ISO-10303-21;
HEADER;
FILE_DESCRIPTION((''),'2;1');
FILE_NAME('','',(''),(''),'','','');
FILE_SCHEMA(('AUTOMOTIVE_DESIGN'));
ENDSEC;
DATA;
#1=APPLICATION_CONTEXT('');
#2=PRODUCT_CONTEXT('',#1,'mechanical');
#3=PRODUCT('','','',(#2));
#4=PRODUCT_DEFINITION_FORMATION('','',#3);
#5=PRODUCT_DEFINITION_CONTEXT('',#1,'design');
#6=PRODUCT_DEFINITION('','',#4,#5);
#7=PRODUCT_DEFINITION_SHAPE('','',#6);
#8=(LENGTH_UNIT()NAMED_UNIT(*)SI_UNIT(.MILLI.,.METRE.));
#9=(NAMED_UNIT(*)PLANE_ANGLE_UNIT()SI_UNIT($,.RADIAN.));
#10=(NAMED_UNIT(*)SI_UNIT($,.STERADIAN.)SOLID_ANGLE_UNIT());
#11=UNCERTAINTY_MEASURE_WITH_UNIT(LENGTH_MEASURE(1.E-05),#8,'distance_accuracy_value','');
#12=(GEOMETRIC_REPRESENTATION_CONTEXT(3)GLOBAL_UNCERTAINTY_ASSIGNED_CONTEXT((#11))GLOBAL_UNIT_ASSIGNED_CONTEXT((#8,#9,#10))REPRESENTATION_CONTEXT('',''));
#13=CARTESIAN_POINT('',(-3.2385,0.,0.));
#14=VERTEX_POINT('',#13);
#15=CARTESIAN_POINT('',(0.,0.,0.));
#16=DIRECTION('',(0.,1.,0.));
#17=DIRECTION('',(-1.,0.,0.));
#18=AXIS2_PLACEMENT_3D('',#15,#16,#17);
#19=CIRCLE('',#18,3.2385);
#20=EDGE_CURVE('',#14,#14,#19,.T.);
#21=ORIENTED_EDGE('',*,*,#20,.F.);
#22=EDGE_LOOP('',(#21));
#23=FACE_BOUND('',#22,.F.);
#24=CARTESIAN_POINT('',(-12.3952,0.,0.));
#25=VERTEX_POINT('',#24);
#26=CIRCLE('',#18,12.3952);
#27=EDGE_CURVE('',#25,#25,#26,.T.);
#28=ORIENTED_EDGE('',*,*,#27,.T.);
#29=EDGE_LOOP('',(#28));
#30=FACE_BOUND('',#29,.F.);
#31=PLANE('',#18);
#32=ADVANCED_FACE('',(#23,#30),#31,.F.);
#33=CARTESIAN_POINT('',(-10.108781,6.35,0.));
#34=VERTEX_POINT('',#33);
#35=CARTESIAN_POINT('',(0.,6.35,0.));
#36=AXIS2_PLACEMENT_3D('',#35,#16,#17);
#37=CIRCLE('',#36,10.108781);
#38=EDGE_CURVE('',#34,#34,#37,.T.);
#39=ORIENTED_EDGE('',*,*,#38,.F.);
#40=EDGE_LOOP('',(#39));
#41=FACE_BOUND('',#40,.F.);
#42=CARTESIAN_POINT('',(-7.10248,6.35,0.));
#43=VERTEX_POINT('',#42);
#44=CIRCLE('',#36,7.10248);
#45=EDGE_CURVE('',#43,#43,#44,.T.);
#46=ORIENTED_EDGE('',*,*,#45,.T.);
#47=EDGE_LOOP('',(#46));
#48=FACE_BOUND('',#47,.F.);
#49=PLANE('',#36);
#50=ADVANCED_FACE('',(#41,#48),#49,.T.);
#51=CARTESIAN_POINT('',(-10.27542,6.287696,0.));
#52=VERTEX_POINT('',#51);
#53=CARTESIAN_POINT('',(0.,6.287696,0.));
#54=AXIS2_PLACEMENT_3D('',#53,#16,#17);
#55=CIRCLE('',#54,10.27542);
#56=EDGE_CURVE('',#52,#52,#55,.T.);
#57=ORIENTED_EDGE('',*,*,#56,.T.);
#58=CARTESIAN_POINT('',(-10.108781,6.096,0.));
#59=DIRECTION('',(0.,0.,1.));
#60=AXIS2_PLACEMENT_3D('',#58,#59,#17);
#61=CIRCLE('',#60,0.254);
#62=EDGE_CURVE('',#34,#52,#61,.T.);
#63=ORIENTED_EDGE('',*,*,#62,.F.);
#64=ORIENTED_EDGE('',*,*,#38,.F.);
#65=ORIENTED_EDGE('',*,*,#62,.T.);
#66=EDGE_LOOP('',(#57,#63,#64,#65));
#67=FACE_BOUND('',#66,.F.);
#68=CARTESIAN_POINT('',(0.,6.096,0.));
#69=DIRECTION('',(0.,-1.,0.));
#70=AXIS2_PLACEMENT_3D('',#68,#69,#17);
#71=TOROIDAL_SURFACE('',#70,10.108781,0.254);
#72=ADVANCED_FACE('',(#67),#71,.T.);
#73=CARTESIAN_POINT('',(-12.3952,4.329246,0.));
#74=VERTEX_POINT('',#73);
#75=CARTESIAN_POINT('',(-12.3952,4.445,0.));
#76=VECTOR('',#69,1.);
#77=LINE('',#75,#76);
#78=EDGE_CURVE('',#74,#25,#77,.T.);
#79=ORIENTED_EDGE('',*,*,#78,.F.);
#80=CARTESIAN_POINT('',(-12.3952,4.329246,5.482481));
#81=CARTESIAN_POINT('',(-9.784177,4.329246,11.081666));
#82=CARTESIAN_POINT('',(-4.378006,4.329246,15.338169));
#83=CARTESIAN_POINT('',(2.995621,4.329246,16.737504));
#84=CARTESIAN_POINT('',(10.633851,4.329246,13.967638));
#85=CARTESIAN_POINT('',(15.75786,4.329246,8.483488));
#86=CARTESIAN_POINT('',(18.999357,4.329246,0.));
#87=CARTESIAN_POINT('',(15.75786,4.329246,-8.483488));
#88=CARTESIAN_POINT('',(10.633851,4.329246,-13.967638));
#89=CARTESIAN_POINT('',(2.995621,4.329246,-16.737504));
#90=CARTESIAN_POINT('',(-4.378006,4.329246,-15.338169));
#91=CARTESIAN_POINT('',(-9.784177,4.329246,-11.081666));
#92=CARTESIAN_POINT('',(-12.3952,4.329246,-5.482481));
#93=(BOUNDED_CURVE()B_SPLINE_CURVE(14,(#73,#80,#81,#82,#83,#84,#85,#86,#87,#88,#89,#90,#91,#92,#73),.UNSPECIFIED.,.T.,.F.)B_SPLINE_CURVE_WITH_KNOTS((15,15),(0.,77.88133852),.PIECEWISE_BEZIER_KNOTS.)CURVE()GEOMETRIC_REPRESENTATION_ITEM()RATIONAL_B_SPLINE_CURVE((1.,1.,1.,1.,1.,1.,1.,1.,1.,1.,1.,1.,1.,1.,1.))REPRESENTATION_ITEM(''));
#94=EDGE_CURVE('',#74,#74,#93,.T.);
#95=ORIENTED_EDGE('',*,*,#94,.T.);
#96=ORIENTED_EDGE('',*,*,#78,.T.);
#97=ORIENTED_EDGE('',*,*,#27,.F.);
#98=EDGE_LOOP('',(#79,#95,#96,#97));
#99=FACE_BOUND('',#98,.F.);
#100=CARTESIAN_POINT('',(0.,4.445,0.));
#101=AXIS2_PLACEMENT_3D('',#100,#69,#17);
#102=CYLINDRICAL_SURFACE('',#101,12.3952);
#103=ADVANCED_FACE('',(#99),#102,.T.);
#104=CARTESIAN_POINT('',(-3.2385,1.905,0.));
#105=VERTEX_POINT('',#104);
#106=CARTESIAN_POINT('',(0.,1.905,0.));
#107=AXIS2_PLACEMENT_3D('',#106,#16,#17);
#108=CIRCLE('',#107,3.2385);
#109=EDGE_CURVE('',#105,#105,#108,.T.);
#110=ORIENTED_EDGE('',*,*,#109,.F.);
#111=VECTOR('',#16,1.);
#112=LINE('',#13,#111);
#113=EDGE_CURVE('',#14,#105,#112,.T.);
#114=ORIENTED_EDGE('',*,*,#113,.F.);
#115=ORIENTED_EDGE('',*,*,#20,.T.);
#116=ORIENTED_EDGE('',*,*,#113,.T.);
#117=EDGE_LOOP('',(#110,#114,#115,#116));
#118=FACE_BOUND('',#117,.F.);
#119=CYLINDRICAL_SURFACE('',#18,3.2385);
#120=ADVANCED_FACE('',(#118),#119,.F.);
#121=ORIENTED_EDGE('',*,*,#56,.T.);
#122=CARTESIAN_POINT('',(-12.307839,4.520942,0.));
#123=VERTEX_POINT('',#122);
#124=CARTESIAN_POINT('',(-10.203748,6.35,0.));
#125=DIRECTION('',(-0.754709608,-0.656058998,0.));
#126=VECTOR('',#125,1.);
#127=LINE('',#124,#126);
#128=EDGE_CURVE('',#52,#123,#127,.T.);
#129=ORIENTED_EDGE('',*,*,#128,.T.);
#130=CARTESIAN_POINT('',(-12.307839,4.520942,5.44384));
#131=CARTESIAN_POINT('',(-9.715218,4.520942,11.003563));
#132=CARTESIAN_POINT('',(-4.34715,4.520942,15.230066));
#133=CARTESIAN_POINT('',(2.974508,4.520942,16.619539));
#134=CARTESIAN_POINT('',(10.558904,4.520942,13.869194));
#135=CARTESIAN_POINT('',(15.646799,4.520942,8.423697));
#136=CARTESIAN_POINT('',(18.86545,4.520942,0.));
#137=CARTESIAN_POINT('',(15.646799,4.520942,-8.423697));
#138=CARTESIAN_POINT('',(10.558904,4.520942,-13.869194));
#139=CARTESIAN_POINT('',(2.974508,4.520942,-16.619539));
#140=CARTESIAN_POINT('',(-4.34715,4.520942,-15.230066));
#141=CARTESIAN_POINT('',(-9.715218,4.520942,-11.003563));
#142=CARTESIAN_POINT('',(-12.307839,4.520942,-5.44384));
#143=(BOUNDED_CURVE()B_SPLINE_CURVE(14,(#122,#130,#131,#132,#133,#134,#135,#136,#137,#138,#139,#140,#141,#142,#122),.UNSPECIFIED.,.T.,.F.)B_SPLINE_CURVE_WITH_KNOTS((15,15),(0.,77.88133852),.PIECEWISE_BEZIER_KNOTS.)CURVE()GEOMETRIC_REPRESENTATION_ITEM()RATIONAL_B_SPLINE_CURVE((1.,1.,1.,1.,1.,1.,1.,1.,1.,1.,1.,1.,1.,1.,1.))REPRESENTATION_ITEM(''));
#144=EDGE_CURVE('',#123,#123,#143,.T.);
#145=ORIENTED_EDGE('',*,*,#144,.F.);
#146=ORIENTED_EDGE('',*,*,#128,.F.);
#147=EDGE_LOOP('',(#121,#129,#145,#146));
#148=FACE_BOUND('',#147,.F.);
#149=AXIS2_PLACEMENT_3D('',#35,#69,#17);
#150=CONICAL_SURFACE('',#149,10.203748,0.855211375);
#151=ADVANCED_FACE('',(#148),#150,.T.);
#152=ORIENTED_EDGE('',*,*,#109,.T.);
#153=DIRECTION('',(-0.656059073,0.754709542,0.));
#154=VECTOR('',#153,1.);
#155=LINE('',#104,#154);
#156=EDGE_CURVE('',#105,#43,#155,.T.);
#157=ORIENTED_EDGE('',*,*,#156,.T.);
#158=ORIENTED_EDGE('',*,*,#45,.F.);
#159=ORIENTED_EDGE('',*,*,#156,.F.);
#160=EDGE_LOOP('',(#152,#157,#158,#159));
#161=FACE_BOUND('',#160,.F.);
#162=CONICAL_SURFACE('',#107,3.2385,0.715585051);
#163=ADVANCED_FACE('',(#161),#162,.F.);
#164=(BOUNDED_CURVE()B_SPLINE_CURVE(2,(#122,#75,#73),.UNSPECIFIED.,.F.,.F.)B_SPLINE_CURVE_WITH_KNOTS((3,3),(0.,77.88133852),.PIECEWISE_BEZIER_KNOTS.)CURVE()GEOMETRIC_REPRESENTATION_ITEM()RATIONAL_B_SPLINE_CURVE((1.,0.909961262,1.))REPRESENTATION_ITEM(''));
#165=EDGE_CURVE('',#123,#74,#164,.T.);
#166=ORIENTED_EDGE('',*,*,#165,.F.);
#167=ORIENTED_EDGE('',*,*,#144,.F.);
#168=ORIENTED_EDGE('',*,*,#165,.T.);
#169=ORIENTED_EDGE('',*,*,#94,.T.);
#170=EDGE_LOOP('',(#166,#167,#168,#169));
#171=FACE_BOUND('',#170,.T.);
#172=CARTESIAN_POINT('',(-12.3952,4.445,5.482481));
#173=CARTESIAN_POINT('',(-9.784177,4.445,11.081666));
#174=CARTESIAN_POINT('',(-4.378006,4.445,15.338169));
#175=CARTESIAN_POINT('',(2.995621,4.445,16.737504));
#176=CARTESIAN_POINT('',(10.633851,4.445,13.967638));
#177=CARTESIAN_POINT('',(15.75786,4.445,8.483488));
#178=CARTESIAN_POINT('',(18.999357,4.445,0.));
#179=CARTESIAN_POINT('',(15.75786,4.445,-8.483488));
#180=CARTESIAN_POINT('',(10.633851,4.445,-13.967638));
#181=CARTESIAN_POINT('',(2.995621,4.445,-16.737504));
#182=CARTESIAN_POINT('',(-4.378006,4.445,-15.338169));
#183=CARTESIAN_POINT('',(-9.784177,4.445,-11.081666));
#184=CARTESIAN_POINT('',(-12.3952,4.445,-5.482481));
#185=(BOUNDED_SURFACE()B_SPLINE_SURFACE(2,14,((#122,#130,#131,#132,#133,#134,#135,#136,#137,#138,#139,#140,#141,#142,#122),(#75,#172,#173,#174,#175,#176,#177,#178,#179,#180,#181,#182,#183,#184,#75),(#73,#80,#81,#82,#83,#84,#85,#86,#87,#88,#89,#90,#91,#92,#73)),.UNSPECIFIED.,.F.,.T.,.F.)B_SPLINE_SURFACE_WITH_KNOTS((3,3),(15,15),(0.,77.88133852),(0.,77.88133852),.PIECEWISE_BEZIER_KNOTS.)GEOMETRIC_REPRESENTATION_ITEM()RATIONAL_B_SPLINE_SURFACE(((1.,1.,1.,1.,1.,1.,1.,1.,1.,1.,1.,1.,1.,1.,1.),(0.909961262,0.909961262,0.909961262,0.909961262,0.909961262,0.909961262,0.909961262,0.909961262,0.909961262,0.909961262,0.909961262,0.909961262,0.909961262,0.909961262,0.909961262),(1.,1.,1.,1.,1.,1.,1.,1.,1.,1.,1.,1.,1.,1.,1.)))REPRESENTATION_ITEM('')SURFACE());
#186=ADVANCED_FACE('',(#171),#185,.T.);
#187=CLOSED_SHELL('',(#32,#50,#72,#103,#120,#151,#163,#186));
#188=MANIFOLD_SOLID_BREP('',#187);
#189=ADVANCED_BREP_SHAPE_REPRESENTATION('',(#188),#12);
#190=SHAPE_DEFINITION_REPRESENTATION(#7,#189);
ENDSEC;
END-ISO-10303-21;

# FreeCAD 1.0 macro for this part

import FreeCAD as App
import Part
import Sketcher
Q = App.Units.Quantity


def edges_at(feature, points):
    """Names of the edges that pass closest to the given points."""
    edges = feature.Shape.Edges
    near = lambda p: min(range(len(edges)), key=lambda i: edges[i].distToShape(Part.Vertex(*p))[0])
    return sorted({f"Edge{near(p) + 1}" for p in points})


def add_polygon(sketch, points):
    """Adds a closed chain of lines whose ends are joined by coincident constraints."""
    first, n = sketch.GeometryCount, len(points)
    for a, b in zip(points, points[1:] + points[:1]):
        sketch.addGeometry(Part.LineSegment(App.Vector(*a, 0), App.Vector(*b, 0)), False)
    for i in range(n):
        sketch.addConstraint(Sketcher.Constraint("Coincident", first + i, 2, first + (i + 1) % n, 1))

doc = App.newDocument("Part")
body = doc.addObject("PartDesign::Body", "Body")

# Sketch on XY plane
sketch1 = body.newObject("Sketcher::SketchObject", "Sketch")
sketch1.AttachmentSupport = (doc.getObject("XY_Plane"), [""])
sketch1.MapMode = "FlatFace"
add_polygon(sketch1, [(-12.4, 0), (-3.2, 0), (-3.2, 1.9), (-7.1, 6.3), (-10.2, 6.3), (-12.4, 4.4)])  # lines 0-5
sketch1.addConstraint([
    Sketcher.Constraint("Horizontal", 0),
    Sketcher.Constraint("Vertical", 1),
    Sketcher.Constraint("Horizontal", 3),
    Sketcher.Constraint("Vertical", 5),
    Sketcher.Constraint("PointOnObject", 0, 2, -1),
    Sketcher.Constraint("Perpendicular", 2, 4),
    Sketcher.Constraint("Angle", 2, Q("131.000003 deg")),
    Sketcher.Constraint("DistanceY", 1, 2, 4, 2, Q("0.1 in")),
    Sketcher.Constraint("DistanceY", 1, 1, 1, 2, Q("0.075 in")),
    Sketcher.Constraint("DistanceY", -1, 1, 2, 2, Q("0.25 in")),
    Sketcher.Constraint("DistanceX", 0, 1, 0, 2, Q("0.3605 in")),
    Sketcher.Constraint("DistanceX", 4, 2, -1, 1, Q("0.488 in")),
])
revolution = body.newObject("PartDesign::Revolution", "Revolution")
revolution.Profile = sketch1
revolution.ReferenceAxis = (sketch1, ["V_Axis"])
revolution.Angle = 360
doc.recompute()

fillet = body.newObject("PartDesign::Fillet", "Fillet")
fillet.Base = (revolution, edges_at(revolution, [(12.395, 4.445, 0), (10.204, 6.35, 0)]))
fillet.Radius = Q("0.01 in")

doc.recompute()
